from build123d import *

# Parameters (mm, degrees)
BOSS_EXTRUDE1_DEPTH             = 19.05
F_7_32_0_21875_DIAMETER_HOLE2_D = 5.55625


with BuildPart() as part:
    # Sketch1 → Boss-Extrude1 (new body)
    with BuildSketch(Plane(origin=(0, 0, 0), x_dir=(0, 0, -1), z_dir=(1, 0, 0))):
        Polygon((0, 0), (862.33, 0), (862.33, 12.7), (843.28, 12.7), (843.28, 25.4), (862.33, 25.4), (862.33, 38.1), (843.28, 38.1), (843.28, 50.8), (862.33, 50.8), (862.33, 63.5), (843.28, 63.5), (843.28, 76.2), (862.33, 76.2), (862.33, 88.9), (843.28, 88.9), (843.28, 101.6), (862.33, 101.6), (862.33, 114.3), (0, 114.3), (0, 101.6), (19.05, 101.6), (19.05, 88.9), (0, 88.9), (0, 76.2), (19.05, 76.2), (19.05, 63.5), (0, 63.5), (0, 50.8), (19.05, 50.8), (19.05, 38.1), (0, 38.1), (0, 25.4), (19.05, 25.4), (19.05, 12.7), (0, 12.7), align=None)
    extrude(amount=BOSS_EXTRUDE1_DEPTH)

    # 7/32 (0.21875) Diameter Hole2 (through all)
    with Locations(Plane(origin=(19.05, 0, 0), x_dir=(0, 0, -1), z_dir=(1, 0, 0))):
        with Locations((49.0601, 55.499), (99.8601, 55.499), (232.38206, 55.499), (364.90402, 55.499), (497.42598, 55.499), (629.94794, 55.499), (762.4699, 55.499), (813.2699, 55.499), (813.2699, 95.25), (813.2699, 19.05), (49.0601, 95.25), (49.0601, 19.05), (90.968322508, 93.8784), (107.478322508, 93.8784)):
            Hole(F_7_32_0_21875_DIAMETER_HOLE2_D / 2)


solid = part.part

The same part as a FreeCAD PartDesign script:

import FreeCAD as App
import Part
import Sketcher
from FreeCAD import Vector
Q = App.Units.Quantity

doc = App.newDocument("Part")
body = doc.addObject("PartDesign::Body", "Body")

# Sketch on YZ plane
sketch1 = doc.addObject("Sketcher::SketchObject", "Sketch")
body.addObject(sketch1)
sketch1.AttachmentSupport = (doc.YZ_Plane, [""])
sketch1.MapMode = "FlatFace"
sketch1.addGeometry([
    Part.LineSegment(Vector(0, 0, 0), Vector(0, -862.33, 0)),  # 0
    Part.LineSegment(Vector(0, -862.33, 0), Vector(12.7, -862.33, 0)),  # 1
    Part.LineSegment(Vector(12.7, -862.33, 0), Vector(12.7, -843.28, 0)),  # 2
    Part.LineSegment(Vector(12.7, -843.28, 0), Vector(25.4, -843.28, 0)),  # 3
    Part.LineSegment(Vector(25.4, -843.28, 0), Vector(25.4, -862.33, 0)),  # 4
    Part.LineSegment(Vector(25.4, -862.33, 0), Vector(38.1, -862.33, 0)),  # 5
    Part.LineSegment(Vector(38.1, -862.33, 0), Vector(38.1, -843.28, 0)),  # 6
    Part.LineSegment(Vector(38.1, -843.28, 0), Vector(50.8, -843.28, 0)),  # 7
    Part.LineSegment(Vector(50.8, -843.28, 0), Vector(50.8, -862.33, 0)),  # 8
    Part.LineSegment(Vector(50.8, -862.33, 0), Vector(63.5, -862.33, 0)),  # 9
    Part.LineSegment(Vector(63.5, -862.33, 0), Vector(63.5, -843.28, 0)),  # 10
    Part.LineSegment(Vector(63.5, -843.28, 0), Vector(76.2, -843.28, 0)),  # 11
    Part.LineSegment(Vector(76.2, -843.28, 0), Vector(76.2, -862.33, 0)),  # 12
    Part.LineSegment(Vector(76.2, -862.33, 0), Vector(88.9, -862.33, 0)),  # 13
    Part.LineSegment(Vector(88.9, -862.33, 0), Vector(88.9, -843.28, 0)),  # 14
    Part.LineSegment(Vector(88.9, -843.28, 0), Vector(101.6, -843.28, 0)),  # 15
    Part.LineSegment(Vector(101.6, -843.28, 0), Vector(101.6, -862.33, 0)),  # 16
    Part.LineSegment(Vector(101.6, -862.33, 0), Vector(114.3, -862.33, 0)),  # 17
    Part.LineSegment(Vector(114.3, -862.33, 0), Vector(114.3, 0, 0)),  # 18
    Part.LineSegment(Vector(114.3, 0, 0), Vector(101.6, 0, 0)),  # 19
    Part.LineSegment(Vector(101.6, 0, 0), Vector(101.6, -19.05, 0)),  # 20
    Part.LineSegment(Vector(101.6, -19.05, 0), Vector(88.9, -19.05, 0)),  # 21
    Part.LineSegment(Vector(88.9, -19.05, 0), Vector(88.9, 0, 0)),  # 22
    Part.LineSegment(Vector(88.9, 0, 0), Vector(76.2, 0, 0)),  # 23
    Part.LineSegment(Vector(76.2, 0, 0), Vector(76.2, -19.05, 0)),  # 24
    Part.LineSegment(Vector(76.2, -19.05, 0), Vector(63.5, -19.05, 0)),  # 25
    Part.LineSegment(Vector(63.5, -19.05, 0), Vector(63.5, 0, 0)),  # 26
    Part.LineSegment(Vector(63.5, 0, 0), Vector(50.8, 0, 0)),  # 27
    Part.LineSegment(Vector(50.8, 0, 0), Vector(50.8, -19.05, 0)),  # 28
    Part.LineSegment(Vector(50.8, -19.05, 0), Vector(38.1, -19.05, 0)),  # 29
    Part.LineSegment(Vector(38.1, -19.05, 0), Vector(38.1, 0, 0)),  # 30
    Part.LineSegment(Vector(38.1, 0, 0), Vector(25.4, 0, 0)),  # 31
    Part.LineSegment(Vector(25.4, 0, 0), Vector(25.4, -19.05, 0)),  # 32
    Part.LineSegment(Vector(25.4, -19.05, 0), Vector(12.7, -19.05, 0)),  # 33
    Part.LineSegment(Vector(12.7, -19.05, 0), Vector(12.7, 0, 0)),  # 34
    Part.LineSegment(Vector(12.7, 0, 0), Vector(0, 0, 0)),  # 35
], False)
sketch1.addConstraint([
    Sketcher.Constraint("Coincident", 0, 2, 1, 1),
    Sketcher.Constraint("Coincident", 1, 2, 2, 1),
    Sketcher.Constraint("Coincident", 2, 2, 3, 1),
    Sketcher.Constraint("Coincident", 3, 2, 4, 1),
    Sketcher.Constraint("Coincident", 4, 2, 5, 1),
    Sketcher.Constraint("Coincident", 5, 2, 6, 1),
    Sketcher.Constraint("Coincident", 6, 2, 7, 1),
    Sketcher.Constraint("Coincident", 7, 2, 8, 1),
    Sketcher.Constraint("Coincident", 8, 2, 9, 1),
    Sketcher.Constraint("Coincident", 9, 2, 10, 1),
    Sketcher.Constraint("Coincident", 10, 2, 11, 1),
    Sketcher.Constraint("Coincident", 11, 2, 12, 1),
    Sketcher.Constraint("Coincident", 12, 2, 13, 1),
    Sketcher.Constraint("Coincident", 13, 2, 14, 1),
    Sketcher.Constraint("Coincident", 14, 2, 15, 1),
    Sketcher.Constraint("Coincident", 15, 2, 16, 1),
    Sketcher.Constraint("Coincident", 16, 2, 17, 1),
    Sketcher.Constraint("Coincident", 17, 2, 18, 1),
    Sketcher.Constraint("Coincident", 18, 2, 19, 1),
    Sketcher.Constraint("Coincident", 19, 2, 20, 1),
    Sketcher.Constraint("Coincident", 20, 2, 21, 1),
    Sketcher.Constraint("Coincident", 21, 2, 22, 1),
    Sketcher.Constraint("Coincident", 22, 2, 23, 1),
    Sketcher.Constraint("Coincident", 23, 2, 24, 1),
    Sketcher.Constraint("Coincident", 24, 2, 25, 1),
    Sketcher.Constraint("Coincident", 25, 2, 26, 1),
    Sketcher.Constraint("Coincident", 26, 2, 27, 1),
    Sketcher.Constraint("Coincident", 27, 2, 28, 1),
    Sketcher.Constraint("Coincident", 28, 2, 29, 1),
    Sketcher.Constraint("Coincident", 29, 2, 30, 1),
    Sketcher.Constraint("Coincident", 30, 2, 31, 1),
    Sketcher.Constraint("Coincident", 31, 2, 32, 1),
    Sketcher.Constraint("Coincident", 32, 2, 33, 1),
    Sketcher.Constraint("Coincident", 33, 2, 34, 1),
    Sketcher.Constraint("Coincident", 34, 2, 35, 1),
    Sketcher.Constraint("Coincident", 35, 2, 0, 1),
    Sketcher.Constraint("Vertical", 0),
    Sketcher.Constraint("Horizontal", 1),
    Sketcher.Constraint("Vertical", 2),
    Sketcher.Constraint("Horizontal", 3),
    Sketcher.Constraint("Vertical", 4),
    Sketcher.Constraint("Horizontal", 5),
    Sketcher.Constraint("Vertical", 6),
    Sketcher.Constraint("Horizontal", 7),
    Sketcher.Constraint("Vertical", 8),
    Sketcher.Constraint("Horizontal", 9),
    Sketcher.Constraint("Vertical", 10),
    Sketcher.Constraint("Horizontal", 11),
    Sketcher.Constraint("Vertical", 12),
    Sketcher.Constraint("Horizontal", 13),
    Sketcher.Constraint("Vertical", 14),
    Sketcher.Constraint("Horizontal", 15),
    Sketcher.Constraint("Vertical", 16),
    Sketcher.Constraint("Horizontal", 17),
    Sketcher.Constraint("Vertical", 18),
    Sketcher.Constraint("Horizontal", 19),
    Sketcher.Constraint("Vertical", 20),
    Sketcher.Constraint("Horizontal", 21),
    Sketcher.Constraint("Vertical", 22),
    Sketcher.Constraint("Horizontal", 23),
    Sketcher.Constraint("Vertical", 24),
    Sketcher.Constraint("Horizontal", 25),
    Sketcher.Constraint("Vertical", 26),
    Sketcher.Constraint("Horizontal", 27),
    Sketcher.Constraint("Vertical", 28),
    Sketcher.Constraint("Horizontal", 29),
    Sketcher.Constraint("Vertical", 30),
    Sketcher.Constraint("Horizontal", 31),
    Sketcher.Constraint("Vertical", 32),
    Sketcher.Constraint("Horizontal", 33),
    Sketcher.Constraint("Vertical", 34),
    Sketcher.Constraint("Horizontal", 35),
    Sketcher.Constraint("Coincident", 35, 2, -1, 1),
    Sketcher.Constraint("PointOnObject", 18, 2, -1),
    Sketcher.Constraint("PointOnObject", 22, 2, -1),
    Sketcher.Constraint("PointOnObject", 26, 2, -1),
    Sketcher.Constraint("PointOnObject", 30, 2, -1),
    Sketcher.Constraint("Horizontal", 1, 2, 4, 2),
    Sketcher.Constraint("Horizontal", 3, 2, 6, 2),
    Sketcher.Constraint("Horizontal", 5, 2, 8, 2),
    Sketcher.Constraint("Horizontal", 7, 2, 10, 2),
    Sketcher.Constraint("Horizontal", 9, 2, 12, 2),
    Sketcher.Constraint("Horizontal", 11, 2, 14, 2),
    Sketcher.Constraint("Horizontal", 13, 2, 16, 2),
    Sketcher.Constraint("Horizontal", 21, 2, 24, 2),
    Sketcher.Constraint("Horizontal", 25, 2, 28, 2),
    Sketcher.Constraint("Horizontal", 29, 2, 32, 2),
    Sketcher.Constraint("Vertical", 16, 2, 19, 2),
    Sketcher.Constraint("Vertical", 14, 2, 21, 2),
    Sketcher.Constraint("Vertical", 12, 2, 23, 2),
    Sketcher.Constraint("Vertical", 10, 2, 25, 2),
    Sketcher.Constraint("Vertical", 8, 2, 27, 2),
    Sketcher.Constraint("Vertical", 6, 2, 29, 2),
    Sketcher.Constraint("Vertical", 4, 2, 31, 2),
    Sketcher.Constraint("Vertical", 2, 2, 33, 2),
    Sketcher.Constraint("Equal", 1, 3),
    Sketcher.Constraint("Equal", 3, 5),
    Sketcher.Constraint("Equal", 5, 7),
    Sketcher.Constraint("Equal", 7, 9),
    Sketcher.Constraint("Equal", 9, 11),
    Sketcher.Constraint("Equal", 11, 13),
    Sketcher.Constraint("Equal", 13, 15),
    Sketcher.Constraint("Equal", 15, 17),
    Sketcher.Constraint("Equal", 16, 20),
    Sketcher.Constraint("DistanceX", 1, 1, 1, 2, Q("0.5 in")),
    Sketcher.Constraint("DistanceY", 0, 2, 0, 1, Q("33.95 in")),
    Sketcher.Constraint("DistanceY", 2, 1, 2, 2, Q("0.75 in")),
])
pad1 = doc.addObject("PartDesign::Pad", "Pad")
body.addObject(pad1)
pad1.Profile = sketch1
pad1.Length = Q("0.75 in")

# Sketch on YZ plane
sketch2 = doc.addObject("Sketcher::SketchObject", "Sketch001")
body.addObject(sketch2)
sketch2.AttachmentSupport = (doc.YZ_Plane, [""])
sketch2.MapMode = "FlatFace"
sketch2.AttachmentOffset = App.Placement(Vector(0, 0, 0.75 * 25.4), App.Rotation())
sketch2.addGeometry([
    Part.Circle(Vector(55.499, -49.0601, 0), Vector(0, 0, 1), 2.778125),  # 0
    Part.Circle(Vector(55.499, -99.8601, 0), Vector(0, 0, 1), 2.778125),  # 1
    Part.Circle(Vector(55.499, -232.38206, 0), Vector(0, 0, 1), 2.778125),  # 2
    Part.Circle(Vector(55.499, -364.90402, 0), Vector(0, 0, 1), 2.778125),  # 3
    Part.Circle(Vector(55.499, -497.42598, 0), Vector(0, 0, 1), 2.778125),  # 4
    Part.Circle(Vector(55.499, -629.94794, 0), Vector(0, 0, 1), 2.778125),  # 5
    Part.Circle(Vector(55.499, -762.4699, 0), Vector(0, 0, 1), 2.778125),  # 6
    Part.Circle(Vector(55.499, -813.2699, 0), Vector(0, 0, 1), 2.778125),  # 7
    Part.Circle(Vector(95.25, -813.2699, 0), Vector(0, 0, 1), 2.778125),  # 8
    Part.Circle(Vector(19.05, -813.2699, 0), Vector(0, 0, 1), 2.778125),  # 9
    Part.Circle(Vector(95.25, -49.0601, 0), Vector(0, 0, 1), 2.778125),  # 10
    Part.Circle(Vector(19.05, -49.0601, 0), Vector(0, 0, 1), 2.778125),  # 11
    Part.Circle(Vector(93.8784, -90.968323, 0), Vector(0, 0, 1), 2.778125),  # 12
    Part.Circle(Vector(93.8784, -107.478323, 0), Vector(0, 0, 1), 2.778125),  # 13
], False)
sketch2.addConstraint([
    Sketcher.Constraint("Equal", 0, 1),
    Sketcher.Constraint("Equal", 1, 2),
    Sketcher.Constraint("Equal", 2, 3),
    Sketcher.Constraint("Equal", 3, 4),
    Sketcher.Constraint("Equal", 4, 5),
    Sketcher.Constraint("Equal", 5, 6),
    Sketcher.Constraint("Equal", 6, 7),
    Sketcher.Constraint("Equal", 7, 8),
    Sketcher.Constraint("Equal", 8, 9),
    Sketcher.Constraint("Equal", 9, 10),
    Sketcher.Constraint("Equal", 10, 11),
    Sketcher.Constraint("Equal", 11, 12),
    Sketcher.Constraint("Equal", 12, 13),
    Sketcher.Constraint("Horizontal", 7, 3, 8, 3),
    Sketcher.Constraint("Horizontal", 8, 3, 9, 3),
    Sketcher.Constraint("Horizontal", 0, 3, 10, 3),
    Sketcher.Constraint("Horizontal", 10, 3, 11, 3),
    Sketcher.Constraint("Vertical", 0, 3, 1, 3),
    Sketcher.Constraint("Vertical", 1, 3, 2, 3),
    Sketcher.Constraint("Vertical", 2, 3, 3, 3),
    Sketcher.Constraint("Vertical", 3, 3, 4, 3),
    Sketcher.Constraint("Vertical", 4, 3, 5, 3),
    Sketcher.Constraint("Vertical", 5, 3, 6, 3),
    Sketcher.Constraint("Vertical", 6, 3, 7, 3),
    Sketcher.Constraint("Vertical", 8, 3, 10, 3),
    Sketcher.Constraint("Vertical", 9, 3, 11, 3),
    Sketcher.Constraint("Vertical", 12, 3, 13, 3),
    Sketcher.Constraint("Diameter", 0, Q("0.21875 in")),
    Sketcher.Constraint("DistanceY", 1, 3, 0, 3, Q("2 in")),
    Sketcher.Constraint("DistanceY", 7, 3, 6, 3, Q("2 in")),
    Sketcher.Constraint("DistanceX", 9, 3, 8, 3, Q("3 in")),
    Sketcher.Constraint("DistanceX", -1, 1, 8, 3, Q("3.75 in")),
    Sketcher.Constraint("DistanceY", 13, 3, 12, 3, Q("0.65 in")),
    Sketcher.Constraint("DistanceX", -1, 1, 0, 3, Q("2.185 in")),
    Sketcher.Constraint("DistanceX", -1, 1, 12, 3, Q("3.696 in")),
    Sketcher.Constraint("DistanceY", 6, 3, 1, 3, Q("26.087 in")),
    Sketcher.Constraint("DistanceY", 0, 3, -1, 1, Q("1.9315 in")),
    Sketcher.Constraint("DistanceY", 2, 3, -1, 1, Q("9.1489 in")),
    Sketcher.Constraint("DistanceY", 3, 3, -1, 1, Q("14.3663 in")),
    Sketcher.Constraint("DistanceY", 4, 3, -1, 1, Q("19.5837 in")),
    Sketcher.Constraint("DistanceY", 5, 3, -1, 1, Q("24.8011 in")),
    Sketcher.Constraint("DistanceY", 12, 3, -1, 1, 90.968323),
])
doc.recompute()
hole = doc.addObject("PartDesign::Hole", "Hole")
body.addObject(hole)
hole.Profile = sketch2
hole.ThreadType = "None"
hole.Diameter = Q("0.21875 in")
hole.DepthType = "ThroughAll"

doc.recompute()
